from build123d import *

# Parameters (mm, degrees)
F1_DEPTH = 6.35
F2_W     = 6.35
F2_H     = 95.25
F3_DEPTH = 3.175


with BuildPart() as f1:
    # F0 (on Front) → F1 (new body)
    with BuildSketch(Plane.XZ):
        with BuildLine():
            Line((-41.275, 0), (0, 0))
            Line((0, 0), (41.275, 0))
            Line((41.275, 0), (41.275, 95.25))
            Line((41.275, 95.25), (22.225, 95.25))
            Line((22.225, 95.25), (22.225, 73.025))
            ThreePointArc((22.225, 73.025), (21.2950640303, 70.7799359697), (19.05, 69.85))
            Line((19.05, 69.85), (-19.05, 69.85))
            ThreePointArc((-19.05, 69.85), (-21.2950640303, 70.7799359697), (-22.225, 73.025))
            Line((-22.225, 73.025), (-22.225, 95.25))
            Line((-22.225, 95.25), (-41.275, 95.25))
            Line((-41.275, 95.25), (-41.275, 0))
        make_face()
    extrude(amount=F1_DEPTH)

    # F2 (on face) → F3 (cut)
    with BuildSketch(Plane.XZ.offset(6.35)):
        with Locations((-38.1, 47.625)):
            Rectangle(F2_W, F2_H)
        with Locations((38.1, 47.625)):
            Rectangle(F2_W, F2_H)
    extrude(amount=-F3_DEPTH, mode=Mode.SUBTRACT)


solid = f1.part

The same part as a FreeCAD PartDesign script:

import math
import FreeCAD as App
import Part
import Sketcher
Q = App.Units.Quantity

doc = App.newDocument("Part")
body = doc.addObject("PartDesign::Body", "Body")

# Sketch on XZ plane
sketch1 = doc.addObject("Sketcher::SketchObject", "Sketch")
body.addObject(sketch1)
sketch1.AttachmentSupport = (doc.XZ_Plane, [""])
sketch1.MapMode = "FlatFace"
sketch1.addGeometry([
    Part.LineSegment(App.Vector(-41.3, 0, 0), App.Vector(41.3, 0, 0)),  # 0
    Part.LineSegment(App.Vector(41.3, 0, 0), App.Vector(41.3, 95.2, 0)),  # 1
    Part.LineSegment(App.Vector(41.3, 95.2, 0), App.Vector(22.2, 95.2, 0)),  # 2
    Part.LineSegment(App.Vector(22.2, 95.2, 0), App.Vector(22.2, 73, 0)),  # 3
    Part.ArcOfCircle(Part.Circle(App.Vector(19.1, 73, 0), App.Vector(0, 0, 1), 3.2), math.radians(-90), math.radians(0)),  # 4
    Part.LineSegment(App.Vector(19.1, 69.8, 0), App.Vector(-19.1, 69.8, 0)),  # 5
    Part.ArcOfCircle(Part.Circle(App.Vector(-19.1, 73, 0), App.Vector(0, 0, 1), 3.2), math.radians(180), math.radians(270)),  # 6
    Part.LineSegment(App.Vector(-22.2, 73, 0), App.Vector(-22.2, 95.2, 0)),  # 7
    Part.LineSegment(App.Vector(-22.2, 95.2, 0), App.Vector(-41.3, 95.2, 0)),  # 8
    Part.LineSegment(App.Vector(-41.3, 95.2, 0), App.Vector(-41.3, 0, 0)),  # 9
], False)
sketch1.addConstraint([
    Sketcher.Constraint("Coincident", 0, 2, 1, 1),
    Sketcher.Constraint("Coincident", 1, 2, 2, 1),
    Sketcher.Constraint("Coincident", 2, 2, 3, 1),
    Sketcher.Constraint("Tangent", 3, 2, 4, 2),
    Sketcher.Constraint("Tangent", 4, 1, 5, 1),
    Sketcher.Constraint("Tangent", 5, 2, 6, 2),
    Sketcher.Constraint("Tangent", 6, 1, 7, 1),
    Sketcher.Constraint("Coincident", 7, 2, 8, 1),
    Sketcher.Constraint("Coincident", 8, 2, 9, 1),
    Sketcher.Constraint("Coincident", 9, 2, 0, 1),
    Sketcher.Constraint("Horizontal", 0),
    Sketcher.Constraint("Vertical", 1),
    Sketcher.Constraint("Horizontal", 2),
    Sketcher.Constraint("Vertical", 3),
    Sketcher.Constraint("Horizontal", 5),
    Sketcher.Constraint("Vertical", 7),
    Sketcher.Constraint("Horizontal", 8),
    Sketcher.Constraint("Vertical", 9),
    Sketcher.Constraint("Equal", 4, 6),
    Sketcher.Constraint("Symmetric", 0, 2, 9, 2, -1, 1),
    Sketcher.Constraint("Symmetric", 2, 2, 7, 2, -2),
    Sketcher.Constraint("DistanceX", 5, 2, 5, 1, Q("1.5 in")),
    Sketcher.Constraint("Radius", 4, Q("0.125 in")),
    Sketcher.Constraint("DistanceY", 4, 1, 2, 2, Q("1 in")),
    Sketcher.Constraint("DistanceX", 0, 1, 0, 2, Q("3.25 in")),
    Sketcher.Constraint("DistanceY", 1, 1, 1, 2, Q("3.75 in")),
])
pad1 = doc.addObject("PartDesign::Pad", "Pad")
body.addObject(pad1)
pad1.Profile = sketch1
pad1.Length = Q("0.25 in")

# Sketch on XZ plane
sketch2 = doc.addObject("Sketcher::SketchObject", "Sketch001")
body.addObject(sketch2)
sketch2.AttachmentSupport = (doc.XZ_Plane, [""])
sketch2.MapMode = "FlatFace"
sketch2.AttachmentOffset = App.Placement(App.Vector(0, 0, 0.25 * 25.4), App.Rotation())
sketch2.addGeometry([
    Part.LineSegment(App.Vector(-41, 95, 0), App.Vector(-41, 0, 0)),  # 0
    Part.LineSegment(App.Vector(-41, 0, 0), App.Vector(-35, 0, 0)),  # 1
    Part.LineSegment(App.Vector(-35, 0, 0), App.Vector(-35, 95, 0)),  # 2
    Part.LineSegment(App.Vector(-35, 95, 0), App.Vector(-41, 95, 0)),  # 3
    Part.LineSegment(App.Vector(35, 95, 0), App.Vector(35, 0, 0)),  # 4
    Part.LineSegment(App.Vector(35, 0, 0), App.Vector(41, 0, 0)),  # 5
    Part.LineSegment(App.Vector(41, 0, 0), App.Vector(41, 95, 0)),  # 6
    Part.LineSegment(App.Vector(41, 95, 0), App.Vector(35, 95, 0)),  # 7
], False)
sketch2.addConstraint([
    Sketcher.Constraint("Coincident", 0, 2, 1, 1),
    Sketcher.Constraint("Coincident", 1, 2, 2, 1),
    Sketcher.Constraint("Coincident", 2, 2, 3, 1),
    Sketcher.Constraint("Coincident", 3, 2, 0, 1),
    Sketcher.Constraint("Coincident", 4, 2, 5, 1),
    Sketcher.Constraint("Coincident", 5, 2, 6, 1),
    Sketcher.Constraint("Coincident", 6, 2, 7, 1),
    Sketcher.Constraint("Coincident", 7, 2, 4, 1),
    Sketcher.Constraint("Vertical", 0),
    Sketcher.Constraint("Horizontal", 1),
    Sketcher.Constraint("Vertical", 2),
    Sketcher.Constraint("Horizontal", 3),
    Sketcher.Constraint("Vertical", 4),
    Sketcher.Constraint("Horizontal", 5),
    Sketcher.Constraint("Vertical", 6),
    Sketcher.Constraint("Horizontal", 7),
    Sketcher.Constraint("Symmetric", 1, 2, 4, 2, -1, 1),
    Sketcher.Constraint("Symmetric", 0, 2, 5, 2, -2),
    Sketcher.Constraint("Horizontal", 3, 2, 6, 2),
    Sketcher.Constraint("DistanceX", 0, 2, 4, 2, Q("3 in")),
    Sketcher.Constraint("DistanceX", 1, 1, 1, 2, Q("0.25 in")),
    Sketcher.Constraint("DistanceY", 0, 2, 0, 1, Q("3.75 in")),
])
pocket1 = doc.addObject("PartDesign::Pocket", "Pocket")
body.addObject(pocket1)
pocket1.Profile = sketch2
pocket1.Length = Q("0.125 in")

doc.recompute()
